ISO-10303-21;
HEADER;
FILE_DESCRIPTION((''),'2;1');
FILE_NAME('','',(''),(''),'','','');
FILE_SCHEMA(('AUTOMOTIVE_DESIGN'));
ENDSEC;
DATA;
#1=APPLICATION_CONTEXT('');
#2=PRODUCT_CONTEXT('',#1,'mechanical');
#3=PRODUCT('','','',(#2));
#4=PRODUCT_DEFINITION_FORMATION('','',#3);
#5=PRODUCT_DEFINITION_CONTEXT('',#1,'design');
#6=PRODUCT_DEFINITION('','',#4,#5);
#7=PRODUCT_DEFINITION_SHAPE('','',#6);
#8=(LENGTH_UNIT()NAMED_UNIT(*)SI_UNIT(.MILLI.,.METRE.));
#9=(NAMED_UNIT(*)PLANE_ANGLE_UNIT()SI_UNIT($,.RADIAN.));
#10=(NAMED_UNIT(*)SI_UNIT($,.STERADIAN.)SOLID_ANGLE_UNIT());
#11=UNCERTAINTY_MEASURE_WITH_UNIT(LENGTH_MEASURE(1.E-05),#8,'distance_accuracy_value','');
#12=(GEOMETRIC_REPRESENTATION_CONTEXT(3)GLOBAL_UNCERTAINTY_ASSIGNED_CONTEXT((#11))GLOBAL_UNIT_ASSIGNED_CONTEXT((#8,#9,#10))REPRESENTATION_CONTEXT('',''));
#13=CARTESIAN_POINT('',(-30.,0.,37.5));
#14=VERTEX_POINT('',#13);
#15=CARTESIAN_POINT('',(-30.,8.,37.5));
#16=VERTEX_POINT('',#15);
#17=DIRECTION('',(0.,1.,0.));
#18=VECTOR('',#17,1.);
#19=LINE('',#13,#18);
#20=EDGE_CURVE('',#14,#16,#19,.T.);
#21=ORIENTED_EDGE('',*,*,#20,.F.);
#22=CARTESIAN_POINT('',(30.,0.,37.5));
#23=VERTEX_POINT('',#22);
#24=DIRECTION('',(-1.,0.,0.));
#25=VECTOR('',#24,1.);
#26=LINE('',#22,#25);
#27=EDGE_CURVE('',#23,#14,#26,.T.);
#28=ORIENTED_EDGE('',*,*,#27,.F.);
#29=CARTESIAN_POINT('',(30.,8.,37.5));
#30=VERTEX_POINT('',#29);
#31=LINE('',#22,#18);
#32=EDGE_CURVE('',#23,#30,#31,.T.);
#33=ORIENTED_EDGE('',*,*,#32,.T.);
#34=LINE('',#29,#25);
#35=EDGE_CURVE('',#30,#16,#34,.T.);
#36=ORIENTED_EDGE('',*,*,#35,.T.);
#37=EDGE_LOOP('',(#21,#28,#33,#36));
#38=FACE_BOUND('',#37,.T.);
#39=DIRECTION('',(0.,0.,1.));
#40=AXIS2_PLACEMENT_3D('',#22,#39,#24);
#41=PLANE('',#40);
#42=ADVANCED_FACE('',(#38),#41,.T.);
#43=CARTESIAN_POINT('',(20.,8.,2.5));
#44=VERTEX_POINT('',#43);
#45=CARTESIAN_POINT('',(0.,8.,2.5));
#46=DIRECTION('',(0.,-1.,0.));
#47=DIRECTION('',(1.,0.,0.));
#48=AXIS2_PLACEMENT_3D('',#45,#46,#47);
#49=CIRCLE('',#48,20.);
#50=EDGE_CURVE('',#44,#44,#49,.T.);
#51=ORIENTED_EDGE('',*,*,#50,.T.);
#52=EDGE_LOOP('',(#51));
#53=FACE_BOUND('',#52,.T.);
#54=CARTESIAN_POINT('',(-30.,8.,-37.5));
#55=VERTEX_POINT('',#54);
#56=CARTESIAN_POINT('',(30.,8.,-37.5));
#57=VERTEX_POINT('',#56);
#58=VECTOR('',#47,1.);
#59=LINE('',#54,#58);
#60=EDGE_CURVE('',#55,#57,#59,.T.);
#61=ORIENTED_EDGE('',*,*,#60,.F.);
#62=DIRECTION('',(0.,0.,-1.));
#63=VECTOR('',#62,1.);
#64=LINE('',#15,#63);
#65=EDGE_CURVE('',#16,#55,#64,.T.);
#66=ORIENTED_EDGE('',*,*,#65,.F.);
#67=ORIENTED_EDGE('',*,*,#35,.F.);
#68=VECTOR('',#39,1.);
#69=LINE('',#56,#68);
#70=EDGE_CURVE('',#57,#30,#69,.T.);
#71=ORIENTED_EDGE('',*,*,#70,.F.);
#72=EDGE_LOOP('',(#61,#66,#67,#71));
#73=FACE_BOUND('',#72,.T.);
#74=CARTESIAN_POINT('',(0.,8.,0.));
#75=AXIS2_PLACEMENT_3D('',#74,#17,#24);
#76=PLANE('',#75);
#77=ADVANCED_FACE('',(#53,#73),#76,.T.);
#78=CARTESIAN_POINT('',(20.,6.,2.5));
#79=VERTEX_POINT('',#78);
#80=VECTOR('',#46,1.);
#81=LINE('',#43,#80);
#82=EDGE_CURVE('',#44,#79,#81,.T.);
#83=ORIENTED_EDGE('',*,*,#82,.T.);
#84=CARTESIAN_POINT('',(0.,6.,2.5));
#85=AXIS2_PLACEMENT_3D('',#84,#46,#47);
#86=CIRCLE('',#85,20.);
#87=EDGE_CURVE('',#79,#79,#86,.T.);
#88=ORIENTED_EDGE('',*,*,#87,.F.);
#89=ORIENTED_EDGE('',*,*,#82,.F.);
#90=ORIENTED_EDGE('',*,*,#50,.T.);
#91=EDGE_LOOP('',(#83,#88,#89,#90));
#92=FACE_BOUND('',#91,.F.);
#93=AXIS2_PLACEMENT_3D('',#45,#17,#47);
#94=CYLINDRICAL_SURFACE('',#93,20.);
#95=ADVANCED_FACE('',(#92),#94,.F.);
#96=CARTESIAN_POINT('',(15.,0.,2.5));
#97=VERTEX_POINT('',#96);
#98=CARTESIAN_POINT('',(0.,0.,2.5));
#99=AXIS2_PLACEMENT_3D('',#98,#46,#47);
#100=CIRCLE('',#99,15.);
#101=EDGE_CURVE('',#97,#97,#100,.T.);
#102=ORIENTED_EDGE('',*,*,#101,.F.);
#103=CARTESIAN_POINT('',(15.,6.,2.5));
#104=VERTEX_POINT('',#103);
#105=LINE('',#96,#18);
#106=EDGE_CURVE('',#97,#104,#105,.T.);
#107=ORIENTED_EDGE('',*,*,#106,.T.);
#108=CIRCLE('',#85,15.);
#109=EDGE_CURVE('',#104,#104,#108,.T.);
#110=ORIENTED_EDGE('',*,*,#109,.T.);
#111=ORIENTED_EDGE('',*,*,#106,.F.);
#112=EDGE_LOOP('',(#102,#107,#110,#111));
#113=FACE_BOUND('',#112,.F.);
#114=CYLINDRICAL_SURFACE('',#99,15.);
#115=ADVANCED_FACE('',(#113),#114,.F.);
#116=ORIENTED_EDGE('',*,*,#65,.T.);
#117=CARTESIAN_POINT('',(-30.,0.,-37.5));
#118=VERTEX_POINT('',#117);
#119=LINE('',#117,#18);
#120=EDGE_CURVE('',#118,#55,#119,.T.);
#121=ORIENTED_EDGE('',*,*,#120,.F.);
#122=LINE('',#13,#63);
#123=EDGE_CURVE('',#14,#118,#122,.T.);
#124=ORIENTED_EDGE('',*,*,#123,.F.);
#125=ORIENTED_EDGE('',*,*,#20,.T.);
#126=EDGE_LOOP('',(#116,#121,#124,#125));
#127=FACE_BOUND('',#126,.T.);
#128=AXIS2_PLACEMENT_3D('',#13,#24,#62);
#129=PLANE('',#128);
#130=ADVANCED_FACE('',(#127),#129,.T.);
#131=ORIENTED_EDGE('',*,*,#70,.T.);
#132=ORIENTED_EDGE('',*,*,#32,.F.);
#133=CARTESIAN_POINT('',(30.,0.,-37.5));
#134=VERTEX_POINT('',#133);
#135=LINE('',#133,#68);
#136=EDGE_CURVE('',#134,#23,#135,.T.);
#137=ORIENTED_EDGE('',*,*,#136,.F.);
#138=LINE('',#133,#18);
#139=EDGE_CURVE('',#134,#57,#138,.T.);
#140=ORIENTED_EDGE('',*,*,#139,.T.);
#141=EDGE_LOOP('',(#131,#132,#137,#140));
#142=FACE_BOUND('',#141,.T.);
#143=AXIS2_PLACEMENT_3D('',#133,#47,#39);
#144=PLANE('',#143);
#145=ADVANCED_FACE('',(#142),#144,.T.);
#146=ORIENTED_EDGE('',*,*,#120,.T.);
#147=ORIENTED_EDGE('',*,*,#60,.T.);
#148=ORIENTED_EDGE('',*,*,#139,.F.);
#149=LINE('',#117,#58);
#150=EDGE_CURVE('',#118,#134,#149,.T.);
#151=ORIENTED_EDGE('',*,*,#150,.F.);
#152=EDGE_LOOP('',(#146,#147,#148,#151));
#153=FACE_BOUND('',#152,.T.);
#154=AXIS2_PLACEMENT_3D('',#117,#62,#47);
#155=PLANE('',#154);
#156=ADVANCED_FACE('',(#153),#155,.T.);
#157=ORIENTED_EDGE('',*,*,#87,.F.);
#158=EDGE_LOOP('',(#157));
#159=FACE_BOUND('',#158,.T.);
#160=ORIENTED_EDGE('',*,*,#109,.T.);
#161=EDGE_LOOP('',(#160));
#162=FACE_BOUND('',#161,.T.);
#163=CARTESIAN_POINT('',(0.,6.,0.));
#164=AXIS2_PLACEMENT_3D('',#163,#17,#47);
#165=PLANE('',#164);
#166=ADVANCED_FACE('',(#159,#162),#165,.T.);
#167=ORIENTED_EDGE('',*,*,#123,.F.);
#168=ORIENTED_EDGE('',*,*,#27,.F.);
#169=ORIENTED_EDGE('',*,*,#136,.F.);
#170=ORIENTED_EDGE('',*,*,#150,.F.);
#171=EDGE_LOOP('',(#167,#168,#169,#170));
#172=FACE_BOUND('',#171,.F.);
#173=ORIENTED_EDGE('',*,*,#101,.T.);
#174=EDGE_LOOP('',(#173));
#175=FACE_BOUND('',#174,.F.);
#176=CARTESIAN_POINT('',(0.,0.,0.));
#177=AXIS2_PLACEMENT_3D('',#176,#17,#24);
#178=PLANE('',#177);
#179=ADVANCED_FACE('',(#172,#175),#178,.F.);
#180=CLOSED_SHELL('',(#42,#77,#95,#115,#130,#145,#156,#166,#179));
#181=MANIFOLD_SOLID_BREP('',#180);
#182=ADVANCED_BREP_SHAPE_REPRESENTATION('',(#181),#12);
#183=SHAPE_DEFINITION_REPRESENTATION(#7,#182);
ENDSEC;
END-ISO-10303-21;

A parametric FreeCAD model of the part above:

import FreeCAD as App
import Part
import Sketcher

doc = App.newDocument("Part")
body = doc.addObject("PartDesign::Body", "Body")

sketch1 = doc.addObject("Sketcher::SketchObject", "Sketch")
body.addObject(sketch1)
sketch1.AttachmentSupport = (doc.XZ_Plane, [""])
sketch1.MapMode = "FlatFace"
sketch1.addGeometry([
    Part.LineSegment(App.Vector(-30, 38, 0), App.Vector(30, 38, 0)),
    Part.LineSegment(App.Vector(30, 38, 0), App.Vector(30, -38, 0)),
    Part.LineSegment(App.Vector(30, -38, 0), App.Vector(-30, -38, 0)),
    Part.LineSegment(App.Vector(-30, -38, 0), App.Vector(-30, 38, 0)),
], False)
sketch1.addConstraint([
    Sketcher.Constraint("Coincident", 0, 2, 1, 1),
    Sketcher.Constraint("Coincident", 1, 2, 2, 1),
    Sketcher.Constraint("Coincident", 2, 2, 3, 1),
    Sketcher.Constraint("Coincident", 3, 2, 0, 1),
    Sketcher.Constraint("Horizontal", 0),
    Sketcher.Constraint("Vertical", 1),
    Sketcher.Constraint("Horizontal", 2),
    Sketcher.Constraint("Vertical", 3),
    Sketcher.Constraint("Symmetric", 0, 2, 2, 2, -1, 1),
    Sketcher.Constraint("DistanceX", 0, 1, 0, 2, 60.0),
    Sketcher.Constraint("DistanceY", 1, 2, 1, 1, 75.0),
])
pad1 = doc.addObject("PartDesign::Pad", "Pad")
body.addObject(pad1)
pad1.Profile = sketch1
pad1.Length = 8
pad1.Reversed = True

sketch2 = doc.addObject("Sketcher::SketchObject", "Sketch001")
body.addObject(sketch2)
sketch2.AttachmentSupport = (doc.XZ_Plane, [""])
sketch2.MapMode = "FlatFace"
sketch2.AttachmentOffset = App.Placement(App.Vector(0, 0, -8), App.Rotation())
sketch2.addGeometry(Part.Circle(App.Vector(0, 2, 0), App.Vector(0, 0, 1), 20), False)
sketch2.addConstraint([
    Sketcher.Constraint("PointOnObject", 0, 3, -2),
    Sketcher.Constraint("Diameter", 0, 40.0),
    Sketcher.Constraint("DistanceY", -1, 1, 0, 3, 2.5),
])
pocket1 = doc.addObject("PartDesign::Pocket", "Pocket")
body.addObject(pocket1)
pocket1.Profile = sketch2
pocket1.Length = 2
pocket1.Reversed = True

sketch3 = doc.addObject("Sketcher::SketchObject", "Sketch002")
body.addObject(sketch3)
sketch3.AttachmentSupport = (doc.XZ_Plane, [""])
sketch3.MapMode = "FlatFace"
sketch3.AttachmentOffset = App.Placement(App.Vector(0, 0, -6), App.Rotation())
sketch3.addGeometry(Part.Circle(App.Vector(0, 2, 0), App.Vector(0, 0, 1), 5), False)
sketch3.addConstraint([
    Sketcher.Constraint("PointOnObject", 0, 3, -2),
    Sketcher.Constraint("Diameter", 0, 10.0),
    Sketcher.Constraint("DistanceY", -1, 1, 0, 3, 2.5),
])
pocket2 = doc.addObject("PartDesign::Pocket", "Pocket001")
body.addObject(pocket2)
pocket2.Profile = sketch3
pocket2.Type = "UpToFirst"
pocket2.Reversed = True

sketch4 = doc.addObject("Sketcher::SketchObject", "Sketch003")
body.addObject(sketch4)
sketch4.AttachmentSupport = (doc.XZ_Plane, [""])
sketch4.MapMode = "FlatFace"
sketch4.addGeometry([
    Part.Circle(App.Vector(0, 2, 0), App.Vector(0, 0, 1), 15),
    Part.Circle(App.Vector(0, 2, 0), App.Vector(0, 0, 1), 5),
], False)
sketch4.addConstraint([
    Sketcher.Constraint("Coincident", 1, 3, 0, 3),
    Sketcher.Constraint("PointOnObject", 0, 3, -2),
    Sketcher.Constraint("Diameter", 0, 30.0),
    Sketcher.Constraint("Diameter", 1, 10.0),
    Sketcher.Constraint("DistanceY", -1, 1, 0, 3, 2.5),
])
pocket3 = doc.addObject("PartDesign::Pocket", "Pocket002")
body.addObject(pocket3)
pocket3.Profile = sketch4
pocket3.Length = 6

doc.recompute()
